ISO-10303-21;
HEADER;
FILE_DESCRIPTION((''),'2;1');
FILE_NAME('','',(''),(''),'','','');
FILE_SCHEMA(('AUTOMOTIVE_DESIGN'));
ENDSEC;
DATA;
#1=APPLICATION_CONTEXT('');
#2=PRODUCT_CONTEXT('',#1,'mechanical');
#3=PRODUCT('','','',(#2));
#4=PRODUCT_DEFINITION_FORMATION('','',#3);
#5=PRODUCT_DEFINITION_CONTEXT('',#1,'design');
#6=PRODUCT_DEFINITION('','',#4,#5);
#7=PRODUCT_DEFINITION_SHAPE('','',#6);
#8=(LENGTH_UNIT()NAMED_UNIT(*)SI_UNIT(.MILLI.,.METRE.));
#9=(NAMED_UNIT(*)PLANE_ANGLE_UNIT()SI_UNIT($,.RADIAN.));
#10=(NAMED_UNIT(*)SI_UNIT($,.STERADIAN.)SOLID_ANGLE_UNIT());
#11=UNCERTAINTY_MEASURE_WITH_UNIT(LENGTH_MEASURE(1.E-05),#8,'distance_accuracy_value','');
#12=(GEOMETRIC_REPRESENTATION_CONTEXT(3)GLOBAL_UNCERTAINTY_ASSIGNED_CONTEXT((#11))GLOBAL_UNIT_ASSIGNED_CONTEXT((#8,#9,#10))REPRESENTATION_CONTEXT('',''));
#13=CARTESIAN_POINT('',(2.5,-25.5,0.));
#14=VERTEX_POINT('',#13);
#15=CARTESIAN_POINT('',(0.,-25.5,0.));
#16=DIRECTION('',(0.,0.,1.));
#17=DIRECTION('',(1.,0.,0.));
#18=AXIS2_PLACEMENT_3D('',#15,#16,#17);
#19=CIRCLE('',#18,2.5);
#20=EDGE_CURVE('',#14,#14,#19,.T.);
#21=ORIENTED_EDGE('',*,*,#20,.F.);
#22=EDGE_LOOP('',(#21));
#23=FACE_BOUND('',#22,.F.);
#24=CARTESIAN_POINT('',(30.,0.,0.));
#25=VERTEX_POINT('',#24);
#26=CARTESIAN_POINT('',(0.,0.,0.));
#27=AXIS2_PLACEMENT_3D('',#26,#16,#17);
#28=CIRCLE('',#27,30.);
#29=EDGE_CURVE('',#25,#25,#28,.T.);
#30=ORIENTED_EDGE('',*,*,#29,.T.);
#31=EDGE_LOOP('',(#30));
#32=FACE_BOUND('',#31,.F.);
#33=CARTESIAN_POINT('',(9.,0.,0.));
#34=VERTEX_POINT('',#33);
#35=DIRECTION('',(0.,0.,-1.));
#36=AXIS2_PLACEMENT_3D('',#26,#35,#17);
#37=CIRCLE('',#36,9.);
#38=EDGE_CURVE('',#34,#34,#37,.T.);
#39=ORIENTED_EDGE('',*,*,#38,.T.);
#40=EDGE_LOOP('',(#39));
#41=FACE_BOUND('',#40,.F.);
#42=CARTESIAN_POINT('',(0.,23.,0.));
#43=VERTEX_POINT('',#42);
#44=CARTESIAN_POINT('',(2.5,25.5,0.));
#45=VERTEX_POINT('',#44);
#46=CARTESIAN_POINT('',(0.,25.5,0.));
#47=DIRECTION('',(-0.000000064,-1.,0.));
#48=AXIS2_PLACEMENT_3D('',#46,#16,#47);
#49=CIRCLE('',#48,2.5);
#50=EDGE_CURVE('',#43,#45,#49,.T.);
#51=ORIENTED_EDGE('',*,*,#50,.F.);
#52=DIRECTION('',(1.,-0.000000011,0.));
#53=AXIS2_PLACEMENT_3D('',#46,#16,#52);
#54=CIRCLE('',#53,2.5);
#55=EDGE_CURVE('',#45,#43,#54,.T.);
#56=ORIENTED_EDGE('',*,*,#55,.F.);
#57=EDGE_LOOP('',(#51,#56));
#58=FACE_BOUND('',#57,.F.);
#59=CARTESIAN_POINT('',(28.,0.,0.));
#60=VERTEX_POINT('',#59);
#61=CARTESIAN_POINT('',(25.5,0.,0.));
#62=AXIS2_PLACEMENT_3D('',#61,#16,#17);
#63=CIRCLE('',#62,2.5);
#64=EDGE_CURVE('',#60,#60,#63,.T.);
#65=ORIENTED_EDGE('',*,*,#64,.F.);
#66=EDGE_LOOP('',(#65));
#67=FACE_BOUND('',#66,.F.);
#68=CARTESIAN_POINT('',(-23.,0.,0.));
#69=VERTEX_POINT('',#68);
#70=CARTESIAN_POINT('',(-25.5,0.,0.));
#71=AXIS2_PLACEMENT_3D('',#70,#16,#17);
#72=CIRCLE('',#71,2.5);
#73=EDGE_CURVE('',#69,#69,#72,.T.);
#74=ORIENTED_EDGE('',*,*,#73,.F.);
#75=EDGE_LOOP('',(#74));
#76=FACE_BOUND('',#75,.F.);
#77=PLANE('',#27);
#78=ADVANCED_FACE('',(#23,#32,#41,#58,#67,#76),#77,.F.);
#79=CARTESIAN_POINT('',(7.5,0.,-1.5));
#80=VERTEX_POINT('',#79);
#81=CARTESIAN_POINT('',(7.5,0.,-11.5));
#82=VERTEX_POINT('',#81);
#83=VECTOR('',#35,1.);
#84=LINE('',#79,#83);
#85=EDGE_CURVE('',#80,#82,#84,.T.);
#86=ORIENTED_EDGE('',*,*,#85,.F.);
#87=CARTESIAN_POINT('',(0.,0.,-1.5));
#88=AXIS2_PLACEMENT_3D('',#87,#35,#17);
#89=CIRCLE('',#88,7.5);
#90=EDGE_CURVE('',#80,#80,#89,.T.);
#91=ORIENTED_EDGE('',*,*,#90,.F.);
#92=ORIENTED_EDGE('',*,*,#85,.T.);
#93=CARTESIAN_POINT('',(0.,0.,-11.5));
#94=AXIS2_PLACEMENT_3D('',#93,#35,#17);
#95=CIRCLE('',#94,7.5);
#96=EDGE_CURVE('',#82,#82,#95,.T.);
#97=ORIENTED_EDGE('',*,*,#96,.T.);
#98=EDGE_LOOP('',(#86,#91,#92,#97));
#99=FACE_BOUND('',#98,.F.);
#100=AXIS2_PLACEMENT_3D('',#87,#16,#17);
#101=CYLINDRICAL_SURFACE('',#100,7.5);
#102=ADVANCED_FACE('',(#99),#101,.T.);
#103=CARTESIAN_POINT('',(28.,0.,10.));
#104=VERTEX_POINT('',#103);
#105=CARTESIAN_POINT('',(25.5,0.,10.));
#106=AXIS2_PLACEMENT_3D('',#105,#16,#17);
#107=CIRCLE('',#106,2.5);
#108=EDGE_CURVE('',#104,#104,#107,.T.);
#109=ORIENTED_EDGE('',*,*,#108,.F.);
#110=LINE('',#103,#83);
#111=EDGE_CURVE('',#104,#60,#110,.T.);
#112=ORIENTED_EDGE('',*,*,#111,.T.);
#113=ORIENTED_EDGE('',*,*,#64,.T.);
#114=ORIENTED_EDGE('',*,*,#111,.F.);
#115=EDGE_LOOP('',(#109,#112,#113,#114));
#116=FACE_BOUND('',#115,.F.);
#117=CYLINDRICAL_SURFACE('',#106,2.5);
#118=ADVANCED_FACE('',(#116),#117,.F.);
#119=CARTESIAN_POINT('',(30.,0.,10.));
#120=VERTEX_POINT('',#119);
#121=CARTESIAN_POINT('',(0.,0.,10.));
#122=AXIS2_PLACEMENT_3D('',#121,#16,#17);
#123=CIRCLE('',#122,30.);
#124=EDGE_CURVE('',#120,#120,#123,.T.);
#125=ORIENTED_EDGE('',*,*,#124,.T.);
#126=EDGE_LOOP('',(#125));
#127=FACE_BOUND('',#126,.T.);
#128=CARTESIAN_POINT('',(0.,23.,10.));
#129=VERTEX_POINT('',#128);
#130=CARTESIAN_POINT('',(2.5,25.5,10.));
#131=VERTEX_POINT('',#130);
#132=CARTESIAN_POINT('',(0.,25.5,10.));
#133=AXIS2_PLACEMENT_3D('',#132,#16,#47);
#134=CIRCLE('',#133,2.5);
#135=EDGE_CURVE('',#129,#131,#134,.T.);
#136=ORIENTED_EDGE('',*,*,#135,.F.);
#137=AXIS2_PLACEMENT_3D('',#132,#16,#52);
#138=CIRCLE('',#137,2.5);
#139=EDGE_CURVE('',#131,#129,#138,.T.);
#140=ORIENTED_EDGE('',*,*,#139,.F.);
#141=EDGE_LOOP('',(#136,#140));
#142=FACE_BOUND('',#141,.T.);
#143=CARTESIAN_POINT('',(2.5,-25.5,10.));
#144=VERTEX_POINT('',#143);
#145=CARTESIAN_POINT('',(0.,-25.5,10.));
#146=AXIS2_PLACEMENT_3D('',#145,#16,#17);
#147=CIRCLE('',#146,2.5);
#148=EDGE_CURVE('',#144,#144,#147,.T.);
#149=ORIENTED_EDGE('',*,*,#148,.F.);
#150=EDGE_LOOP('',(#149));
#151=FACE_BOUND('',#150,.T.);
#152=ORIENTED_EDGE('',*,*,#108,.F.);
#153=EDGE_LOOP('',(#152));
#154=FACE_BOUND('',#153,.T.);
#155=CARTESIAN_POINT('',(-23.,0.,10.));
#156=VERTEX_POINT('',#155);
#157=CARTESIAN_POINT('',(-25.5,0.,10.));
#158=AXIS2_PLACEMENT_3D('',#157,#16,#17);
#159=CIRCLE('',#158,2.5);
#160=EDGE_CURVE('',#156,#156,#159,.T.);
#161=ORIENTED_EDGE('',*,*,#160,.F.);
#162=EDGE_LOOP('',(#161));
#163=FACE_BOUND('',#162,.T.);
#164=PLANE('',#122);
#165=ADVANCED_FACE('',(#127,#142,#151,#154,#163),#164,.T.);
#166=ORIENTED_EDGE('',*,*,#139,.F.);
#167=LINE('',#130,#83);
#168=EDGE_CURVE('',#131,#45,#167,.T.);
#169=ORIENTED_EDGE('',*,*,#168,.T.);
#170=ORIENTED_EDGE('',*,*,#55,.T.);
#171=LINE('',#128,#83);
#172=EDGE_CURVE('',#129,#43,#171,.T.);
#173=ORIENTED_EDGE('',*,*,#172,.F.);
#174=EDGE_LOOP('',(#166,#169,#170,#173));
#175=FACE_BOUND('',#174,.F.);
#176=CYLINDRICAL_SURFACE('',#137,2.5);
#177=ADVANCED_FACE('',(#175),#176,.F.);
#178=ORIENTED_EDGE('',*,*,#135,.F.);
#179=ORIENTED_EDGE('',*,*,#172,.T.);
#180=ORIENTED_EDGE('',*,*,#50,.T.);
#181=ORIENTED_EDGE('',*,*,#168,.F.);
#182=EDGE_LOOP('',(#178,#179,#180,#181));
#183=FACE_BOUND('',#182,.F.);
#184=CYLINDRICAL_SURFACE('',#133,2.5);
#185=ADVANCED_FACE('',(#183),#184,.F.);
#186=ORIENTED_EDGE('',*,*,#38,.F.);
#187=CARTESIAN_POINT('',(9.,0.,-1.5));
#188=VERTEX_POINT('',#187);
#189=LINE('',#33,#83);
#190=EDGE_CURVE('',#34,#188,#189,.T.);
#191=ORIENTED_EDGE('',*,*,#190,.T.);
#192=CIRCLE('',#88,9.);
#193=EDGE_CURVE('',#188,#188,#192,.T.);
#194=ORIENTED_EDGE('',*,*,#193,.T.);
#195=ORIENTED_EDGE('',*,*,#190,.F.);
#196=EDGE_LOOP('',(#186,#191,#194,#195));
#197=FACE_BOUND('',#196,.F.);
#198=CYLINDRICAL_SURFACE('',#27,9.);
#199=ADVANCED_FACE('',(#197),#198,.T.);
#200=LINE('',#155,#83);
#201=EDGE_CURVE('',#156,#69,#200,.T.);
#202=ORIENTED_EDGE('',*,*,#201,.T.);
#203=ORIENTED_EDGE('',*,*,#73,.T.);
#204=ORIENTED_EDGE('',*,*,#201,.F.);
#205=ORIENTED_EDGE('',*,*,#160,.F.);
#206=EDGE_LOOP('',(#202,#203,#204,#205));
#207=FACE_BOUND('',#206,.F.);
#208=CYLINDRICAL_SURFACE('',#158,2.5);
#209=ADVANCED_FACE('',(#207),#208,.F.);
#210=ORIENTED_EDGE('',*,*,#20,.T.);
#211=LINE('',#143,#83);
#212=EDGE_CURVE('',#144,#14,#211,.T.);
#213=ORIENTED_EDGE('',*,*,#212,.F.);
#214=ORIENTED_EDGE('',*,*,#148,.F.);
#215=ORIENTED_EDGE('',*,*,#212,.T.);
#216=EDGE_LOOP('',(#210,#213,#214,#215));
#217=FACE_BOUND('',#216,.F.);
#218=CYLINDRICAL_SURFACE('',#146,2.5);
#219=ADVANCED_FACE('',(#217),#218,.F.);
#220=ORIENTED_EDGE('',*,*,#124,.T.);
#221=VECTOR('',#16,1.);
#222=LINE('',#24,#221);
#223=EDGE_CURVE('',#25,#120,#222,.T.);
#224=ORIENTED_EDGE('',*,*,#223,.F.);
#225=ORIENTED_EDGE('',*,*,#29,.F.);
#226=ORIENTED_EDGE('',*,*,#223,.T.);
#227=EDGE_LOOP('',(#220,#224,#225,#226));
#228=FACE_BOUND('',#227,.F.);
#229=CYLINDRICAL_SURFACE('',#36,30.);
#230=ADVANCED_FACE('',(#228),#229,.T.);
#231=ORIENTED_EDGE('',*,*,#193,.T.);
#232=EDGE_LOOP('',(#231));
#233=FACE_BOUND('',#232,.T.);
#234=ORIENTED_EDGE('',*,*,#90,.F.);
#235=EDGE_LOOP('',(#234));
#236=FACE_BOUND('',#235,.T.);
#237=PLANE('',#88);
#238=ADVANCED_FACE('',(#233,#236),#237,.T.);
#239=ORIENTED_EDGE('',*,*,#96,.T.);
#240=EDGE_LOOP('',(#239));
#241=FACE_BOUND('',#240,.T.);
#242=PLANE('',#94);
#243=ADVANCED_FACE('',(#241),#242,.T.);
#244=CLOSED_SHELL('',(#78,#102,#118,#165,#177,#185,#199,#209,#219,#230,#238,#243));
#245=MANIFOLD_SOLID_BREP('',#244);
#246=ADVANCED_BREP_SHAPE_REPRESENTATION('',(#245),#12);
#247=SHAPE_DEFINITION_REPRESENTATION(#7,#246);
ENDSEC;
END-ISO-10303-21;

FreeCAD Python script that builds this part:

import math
import FreeCAD as App
import Part
import Sketcher

V = App.Vector

doc = App.newDocument("Part")
body = doc.addObject("PartDesign::Body", "Body")

sketch1 = doc.addObject("Sketcher::SketchObject", "Sketch")
body.addObject(sketch1)
sketch1.AttachmentSupport = (doc.XY_Plane, [""])
sketch1.MapMode = "FlatFace"
sketch1.addGeometry(Part.Circle(V(0, 0, 0), V(0, 0, 1), 30), False)
sketch1.addConstraint(Sketcher.Constraint("Coincident", 0, 3, -1, 1))
sketch1.addConstraint(Sketcher.Constraint("Diameter", 0, 60.0))
pad1 = doc.addObject("PartDesign::Pad", "Pad")
body.addObject(pad1)
pad1.Profile = sketch1
pad1.Length = 10

sketch2 = doc.addObject("Sketcher::SketchObject", "Sketch001")
body.addObject(sketch2)
sketch2.AttachmentSupport = (doc.XY_Plane, [""])
sketch2.MapMode = "FlatFace"
sketch2.AttachmentOffset = App.Placement(V(0, 0, 10), App.Rotation())
sketch2.addGeometry(Part.ArcOfCircle(Part.Circle(V(0, 25.5, 0), V(0, 0, 1), 2.5), math.radians(-90), math.radians(0)), False)
sketch2.addGeometry(Part.ArcOfCircle(Part.Circle(V(0, 25.5, 0), V(0, 0, 1), 2.5), math.radians(0), math.radians(270)), False)
sketch2.addGeometry(Part.Circle(V(25.5, 0, 0), V(0, 0, 1), 2.5), False)
sketch2.addGeometry(Part.Circle(V(0, -25.5, 0), V(0, 0, 1), 2.5), False)
sketch2.addGeometry(Part.Circle(V(-25.5, 0, 0), V(0, 0, 1), 2.5), False)
sketch2.addConstraint(Sketcher.Constraint("Tangent", 0, 1, 1, 2))
sketch2.addConstraint(Sketcher.Constraint("Coincident", 1, 1, 0, 2))
sketch2.addConstraint(Sketcher.Constraint("Equal", 1, 2))
sketch2.addConstraint(Sketcher.Constraint("Equal", 2, 3))
sketch2.addConstraint(Sketcher.Constraint("Equal", 3, 4))
sketch2.addConstraint(Sketcher.Constraint("Symmetric", 0, 3, 3, 3, -1, 1))
sketch2.addConstraint(Sketcher.Constraint("Symmetric", 2, 3, 4, 3, -1, 1))
sketch2.addConstraint(Sketcher.Constraint("PointOnObject", 0, 3, -2))
sketch2.addConstraint(Sketcher.Constraint("PointOnObject", 2, 3, -1))
sketch2.addConstraint(Sketcher.Constraint("PointOnObject", 0, 1, -2))
sketch2.addConstraint(Sketcher.Constraint("Horizontal", 0, 3, 1, 1))
sketch2.addConstraint(Sketcher.Constraint("Diameter", 2, 5.0))
sketch2.addConstraint(Sketcher.Constraint("DistanceY", -1, 1, 0, 1, 23.0))
sketch2.addConstraint(Sketcher.Constraint("DistanceX", 4, 3, 2, 3, 51.0))
pocket1 = doc.addObject("PartDesign::Pocket", "Pocket")
body.addObject(pocket1)
pocket1.Profile = sketch2
pocket1.Type = "ThroughAll"

sketch3 = doc.addObject("Sketcher::SketchObject", "Sketch002")
body.addObject(sketch3)
sketch3.AttachmentSupport = (doc.XY_Plane, [""])
sketch3.MapMode = "FlatFace"
sketch3.addGeometry(Part.Circle(V(0, 0, 0), V(0, 0, 1), 9), False)
sketch3.addConstraint(Sketcher.Constraint("Coincident", 0, 3, -1, 1))
sketch3.addConstraint(Sketcher.Constraint("Diameter", 0, 18.0))
pad2 = doc.addObject("PartDesign::Pad", "Pad001")
body.addObject(pad2)
pad2.Profile = sketch3
pad2.Length = 1.5
pad2.Reversed = True

sketch4 = doc.addObject("Sketcher::SketchObject", "Sketch003")
body.addObject(sketch4)
sketch4.AttachmentSupport = (doc.XY_Plane, [""])
sketch4.MapMode = "FlatFace"
sketch4.AttachmentOffset = App.Placement(V(0, 0, -1.5), App.Rotation())
sketch4.addGeometry(Part.Circle(V(0, 0, 0), V(0, 0, 1), 8), False)
sketch4.addConstraint(Sketcher.Constraint("Coincident", 0, 3, -1, 1))
sketch4.addConstraint(Sketcher.Constraint("Diameter", 0, 15.0))
pad3 = doc.addObject("PartDesign::Pad", "Pad002")
body.addObject(pad3)
pad3.Profile = sketch4
pad3.Length = 10
pad3.Reversed = True

doc.recompute()
